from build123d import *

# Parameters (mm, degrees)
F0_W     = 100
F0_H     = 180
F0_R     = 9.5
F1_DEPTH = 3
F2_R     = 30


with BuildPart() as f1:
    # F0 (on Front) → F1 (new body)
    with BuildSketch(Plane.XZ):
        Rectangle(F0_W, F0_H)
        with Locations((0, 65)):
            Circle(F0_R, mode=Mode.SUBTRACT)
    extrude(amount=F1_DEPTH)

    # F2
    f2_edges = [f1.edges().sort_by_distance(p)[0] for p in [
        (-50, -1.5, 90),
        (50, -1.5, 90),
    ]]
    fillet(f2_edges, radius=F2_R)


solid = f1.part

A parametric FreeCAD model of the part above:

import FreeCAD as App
import Part
import Sketcher

V = App.Vector


def edges_at(feature, points):
    """Names of the edges that pass closest to the given points."""
    edges = feature.Shape.Edges
    near = lambda p: min(range(len(edges)), key=lambda i: edges[i].distToShape(Part.Vertex(*p))[0])
    return sorted({f"Edge{near(p) + 1}" for p in points})

doc = App.newDocument("Part")
body = doc.addObject("PartDesign::Body", "Body")

# Sketch on XZ plane
sketch1 = body.newObject("Sketcher::SketchObject", "Sketch")
sketch1.AttachmentSupport = (doc.getObject("XZ_Plane"), [""])
sketch1.MapMode = "FlatFace"
sketch1.addGeometry([
    Part.LineSegment(V(-50, 90, 0), V(-50, -90, 0)),  # 0
    Part.LineSegment(V(-50, -90, 0), V(50, -90, 0)),  # 1
    Part.LineSegment(V(50, -90, 0), V(50, 90, 0)),  # 2
    Part.LineSegment(V(50, 90, 0), V(-50, 90, 0)),  # 3
    Part.Circle(V(0, 65, 0), V(0, 0, 1), 10),  # 4
], False)
sketch1.addConstraint([
    Sketcher.Constraint("Coincident", 0, 2, 1, 1),
    Sketcher.Constraint("Coincident", 1, 2, 2, 1),
    Sketcher.Constraint("Coincident", 2, 2, 3, 1),
    Sketcher.Constraint("Coincident", 3, 2, 0, 1),
    Sketcher.Constraint("Vertical", 0),
    Sketcher.Constraint("Horizontal", 1),
    Sketcher.Constraint("Vertical", 2),
    Sketcher.Constraint("Horizontal", 3),
    Sketcher.Constraint("Symmetric", 0, 2, 2, 2, -1, 1),
    Sketcher.Constraint("PointOnObject", 4, 3, -2),
    Sketcher.Constraint("Diameter", 4, 19.0),
    Sketcher.Constraint("DistanceX", 1, 1, 1, 2, 100.0),
    Sketcher.Constraint("DistanceY", 0, 2, 0, 1, 180.0),
    Sketcher.Constraint("DistanceY", -1, 1, 4, 3, 65.0),
])
pad1 = body.newObject("PartDesign::Pad", "Pad")
pad1.Profile = sketch1
pad1.Length = 3
doc.recompute()

fillet = body.newObject("PartDesign::Fillet", "Fillet")
fillet.Base = (pad1, edges_at(pad1, [(-50, -1.5, 90), (50, -1.5, 90)]))
fillet.Radius = 30

doc.recompute()
